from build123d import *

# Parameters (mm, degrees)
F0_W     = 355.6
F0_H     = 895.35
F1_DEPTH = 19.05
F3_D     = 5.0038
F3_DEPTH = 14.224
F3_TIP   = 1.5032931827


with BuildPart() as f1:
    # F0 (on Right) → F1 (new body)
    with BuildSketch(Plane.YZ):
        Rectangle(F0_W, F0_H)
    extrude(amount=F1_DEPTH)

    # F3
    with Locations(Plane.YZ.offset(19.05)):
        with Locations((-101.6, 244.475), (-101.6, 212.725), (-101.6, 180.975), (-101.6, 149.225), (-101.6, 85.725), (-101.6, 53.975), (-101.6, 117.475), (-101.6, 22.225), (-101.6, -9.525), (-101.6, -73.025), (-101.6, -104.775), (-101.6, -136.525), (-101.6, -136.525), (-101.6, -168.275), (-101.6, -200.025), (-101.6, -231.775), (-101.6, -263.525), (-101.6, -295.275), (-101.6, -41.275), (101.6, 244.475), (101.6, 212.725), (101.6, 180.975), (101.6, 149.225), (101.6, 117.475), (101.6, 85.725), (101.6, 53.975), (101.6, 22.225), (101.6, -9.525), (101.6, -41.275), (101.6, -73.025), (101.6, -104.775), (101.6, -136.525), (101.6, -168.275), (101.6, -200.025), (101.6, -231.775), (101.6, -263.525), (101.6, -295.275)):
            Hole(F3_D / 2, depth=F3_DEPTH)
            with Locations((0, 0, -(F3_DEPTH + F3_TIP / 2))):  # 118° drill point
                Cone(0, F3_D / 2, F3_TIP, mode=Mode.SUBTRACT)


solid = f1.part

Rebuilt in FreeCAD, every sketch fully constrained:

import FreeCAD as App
import Part
import Sketcher
Q = App.Units.Quantity

doc = App.newDocument("Part")
body = doc.addObject("PartDesign::Body", "Body")

sketch1 = doc.addObject("Sketcher::SketchObject", "Sketch")
body.addObject(sketch1)
sketch1.AttachmentSupport = (doc.YZ_Plane, [""])
sketch1.MapMode = "FlatFace"
sketch1.addGeometry([
    Part.LineSegment(App.Vector(-178, 448, 0), App.Vector(-178, -448, 0)),
    Part.LineSegment(App.Vector(-178, -448, 0), App.Vector(178, -448, 0)),
    Part.LineSegment(App.Vector(178, -448, 0), App.Vector(178, 448, 0)),
    Part.LineSegment(App.Vector(178, 448, 0), App.Vector(-178, 448, 0)),
], False)
sketch1.addConstraint([
    Sketcher.Constraint("Coincident", 0, 2, 1, 1),
    Sketcher.Constraint("Coincident", 1, 2, 2, 1),
    Sketcher.Constraint("Coincident", 2, 2, 3, 1),
    Sketcher.Constraint("Coincident", 3, 2, 0, 1),
    Sketcher.Constraint("Vertical", 0),
    Sketcher.Constraint("Horizontal", 1),
    Sketcher.Constraint("Vertical", 2),
    Sketcher.Constraint("Horizontal", 3),
    Sketcher.Constraint("Symmetric", 0, 2, 2, 2, -1, 1),
    Sketcher.Constraint("DistanceX", 1, 1, 1, 2, Q("14 in")),
    Sketcher.Constraint("DistanceY", 0, 2, 0, 1, Q("35.25 in")),
])
pad1 = doc.addObject("PartDesign::Pad", "Pad")
body.addObject(pad1)
pad1.Profile = sketch1
pad1.Length = Q("0.75 in")

sketch2 = doc.addObject("Sketcher::SketchObject", "Sketch001")
body.addObject(sketch2)
sketch2.AttachmentSupport = (doc.YZ_Plane, [""])
sketch2.MapMode = "FlatFace"
sketch2.AttachmentOffset = App.Placement(App.Vector(0, 0, 0.75 * 25.4), App.Rotation())
sketch2.addGeometry([
    Part.Circle(App.Vector(-101.6, 244.5, 0), App.Vector(0, 0, 1), 2.5),
    Part.Circle(App.Vector(-101.6, 212.7, 0), App.Vector(0, 0, 1), 2.5),
    Part.Circle(App.Vector(-101.6, 181, 0), App.Vector(0, 0, 1), 2.5),
    Part.Circle(App.Vector(-101.6, 149.2, 0), App.Vector(0, 0, 1), 2.5),
    Part.Circle(App.Vector(-101.6, 85.7, 0), App.Vector(0, 0, 1), 2.5),
    Part.Circle(App.Vector(-101.6, 54, 0), App.Vector(0, 0, 1), 2.5),
    Part.Circle(App.Vector(-101.6, 117.5, 0), App.Vector(0, 0, 1), 2.5),
    Part.Circle(App.Vector(-101.6, 22.2, 0), App.Vector(0, 0, 1), 2.5),
    Part.Circle(App.Vector(-101.6, -9.5, 0), App.Vector(0, 0, 1), 2.5),
    Part.Circle(App.Vector(-101.6, -73, 0), App.Vector(0, 0, 1), 2.5),
    Part.Circle(App.Vector(-101.6, -104.8, 0), App.Vector(0, 0, 1), 2.5),
    Part.Circle(App.Vector(-101.6, -136.5, 0), App.Vector(0, 0, 1), 2.5),
    Part.Circle(App.Vector(-101.6, -136.5, 0), App.Vector(0, 0, 1), 2.5),
    Part.Circle(App.Vector(-101.6, -168.3, 0), App.Vector(0, 0, 1), 2.5),
    Part.Circle(App.Vector(-101.6, -200, 0), App.Vector(0, 0, 1), 2.5),
    Part.Circle(App.Vector(-101.6, -231.8, 0), App.Vector(0, 0, 1), 2.5),
    Part.Circle(App.Vector(-101.6, -263.5, 0), App.Vector(0, 0, 1), 2.5),
    Part.Circle(App.Vector(-101.6, -295.3, 0), App.Vector(0, 0, 1), 2.5),
    Part.Circle(App.Vector(-101.6, -41.3, 0), App.Vector(0, 0, 1), 2.5),
    Part.Circle(App.Vector(101.6, 244.5, 0), App.Vector(0, 0, 1), 2.5),
    Part.Circle(App.Vector(101.6, 212.7, 0), App.Vector(0, 0, 1), 2.5),
    Part.Circle(App.Vector(101.6, 181, 0), App.Vector(0, 0, 1), 2.5),
    Part.Circle(App.Vector(101.6, 149.2, 0), App.Vector(0, 0, 1), 2.5),
    Part.Circle(App.Vector(101.6, 117.5, 0), App.Vector(0, 0, 1), 2.5),
    Part.Circle(App.Vector(101.6, 85.7, 0), App.Vector(0, 0, 1), 2.5),
    Part.Circle(App.Vector(101.6, 54, 0), App.Vector(0, 0, 1), 2.5),
    Part.Circle(App.Vector(101.6, 22.2, 0), App.Vector(0, 0, 1), 2.5),
    Part.Circle(App.Vector(101.6, -9.5, 0), App.Vector(0, 0, 1), 2.5),
    Part.Circle(App.Vector(101.6, -41.3, 0), App.Vector(0, 0, 1), 2.5),
    Part.Circle(App.Vector(101.6, -73, 0), App.Vector(0, 0, 1), 2.5),
    Part.Circle(App.Vector(101.6, -104.8, 0), App.Vector(0, 0, 1), 2.5),
    Part.Circle(App.Vector(101.6, -136.5, 0), App.Vector(0, 0, 1), 2.5),
    Part.Circle(App.Vector(101.6, -168.3, 0), App.Vector(0, 0, 1), 2.5),
    Part.Circle(App.Vector(101.6, -200, 0), App.Vector(0, 0, 1), 2.5),
    Part.Circle(App.Vector(101.6, -231.8, 0), App.Vector(0, 0, 1), 2.5),
    Part.Circle(App.Vector(101.6, -263.5, 0), App.Vector(0, 0, 1), 2.5),
    Part.Circle(App.Vector(101.6, -295.3, 0), App.Vector(0, 0, 1), 2.5),
], False)
sketch2.addConstraint([
    Sketcher.Constraint("Coincident", 12, 3, 11, 3),
    Sketcher.Constraint("Equal", 0, 1),
    Sketcher.Constraint("Equal", 1, 2),
    Sketcher.Constraint("Equal", 2, 3),
    Sketcher.Constraint("Equal", 3, 4),
    Sketcher.Constraint("Equal", 4, 5),
    Sketcher.Constraint("Equal", 5, 6),
    Sketcher.Constraint("Equal", 6, 7),
    Sketcher.Constraint("Equal", 7, 8),
    Sketcher.Constraint("Equal", 8, 9),
    Sketcher.Constraint("Equal", 9, 10),
    Sketcher.Constraint("Equal", 10, 11),
    Sketcher.Constraint("Equal", 11, 12),
    Sketcher.Constraint("Equal", 12, 13),
    Sketcher.Constraint("Equal", 13, 14),
    Sketcher.Constraint("Equal", 14, 15),
    Sketcher.Constraint("Equal", 15, 16),
    Sketcher.Constraint("Equal", 16, 17),
    Sketcher.Constraint("Equal", 17, 18),
    Sketcher.Constraint("Equal", 18, 19),
    Sketcher.Constraint("Equal", 19, 20),
    Sketcher.Constraint("Equal", 20, 21),
    Sketcher.Constraint("Equal", 21, 22),
    Sketcher.Constraint("Equal", 22, 23),
    Sketcher.Constraint("Equal", 23, 24),
    Sketcher.Constraint("Equal", 24, 25),
    Sketcher.Constraint("Equal", 25, 26),
    Sketcher.Constraint("Equal", 26, 27),
    Sketcher.Constraint("Equal", 27, 28),
    Sketcher.Constraint("Equal", 28, 29),
    Sketcher.Constraint("Equal", 29, 30),
    Sketcher.Constraint("Equal", 30, 31),
    Sketcher.Constraint("Equal", 31, 32),
    Sketcher.Constraint("Equal", 32, 33),
    Sketcher.Constraint("Equal", 33, 34),
    Sketcher.Constraint("Equal", 34, 35),
    Sketcher.Constraint("Equal", 35, 36),
    Sketcher.Constraint("Symmetric", 0, 3, 19, 3, -2),
    Sketcher.Constraint("Symmetric", 1, 3, 20, 3, -2),
    Sketcher.Constraint("Symmetric", 2, 3, 21, 3, -2),
    Sketcher.Constraint("Symmetric", 3, 3, 22, 3, -2),
    Sketcher.Constraint("Symmetric", 6, 3, 23, 3, -2),
    Sketcher.Constraint("Symmetric", 4, 3, 24, 3, -2),
    Sketcher.Constraint("Symmetric", 5, 3, 25, 3, -2),
    Sketcher.Constraint("Symmetric", 7, 3, 26, 3, -2),
    Sketcher.Constraint("Symmetric", 8, 3, 27, 3, -2),
    Sketcher.Constraint("Symmetric", 18, 3, 28, 3, -2),
    Sketcher.Constraint("Symmetric", 9, 3, 29, 3, -2),
    Sketcher.Constraint("Symmetric", 10, 3, 30, 3, -2),
    Sketcher.Constraint("Symmetric", 11, 3, 31, 3, -2),
    Sketcher.Constraint("Symmetric", 13, 3, 32, 3, -2),
    Sketcher.Constraint("Symmetric", 14, 3, 33, 3, -2),
    Sketcher.Constraint("Symmetric", 15, 3, 34, 3, -2),
    Sketcher.Constraint("Symmetric", 16, 3, 35, 3, -2),
    Sketcher.Constraint("Symmetric", 17, 3, 36, 3, -2),
    Sketcher.Constraint("Vertical", 0, 3, 1, 3),
    Sketcher.Constraint("Vertical", 1, 3, 2, 3),
    Sketcher.Constraint("Vertical", 2, 3, 3, 3),
    Sketcher.Constraint("Vertical", 3, 3, 4, 3),
    Sketcher.Constraint("Vertical", 4, 3, 5, 3),
    Sketcher.Constraint("Vertical", 5, 3, 6, 3),
    Sketcher.Constraint("Vertical", 6, 3, 7, 3),
    Sketcher.Constraint("Vertical", 7, 3, 8, 3),
    Sketcher.Constraint("Vertical", 8, 3, 9, 3),
    Sketcher.Constraint("Vertical", 9, 3, 10, 3),
    Sketcher.Constraint("Vertical", 10, 3, 11, 3),
    Sketcher.Constraint("Vertical", 12, 3, 13, 3),
    Sketcher.Constraint("Vertical", 13, 3, 14, 3),
    Sketcher.Constraint("Vertical", 14, 3, 15, 3),
    Sketcher.Constraint("Vertical", 15, 3, 16, 3),
    Sketcher.Constraint("Vertical", 16, 3, 17, 3),
    Sketcher.Constraint("Vertical", 17, 3, 18, 3),
    Sketcher.Constraint("Diameter", 0, Q("0.197 in")),
    Sketcher.Constraint("DistanceX", 0, 3, -1, 1, Q("4 in")),
    Sketcher.Constraint("DistanceY", 4, 3, 1, 3, Q("5 in")),
    Sketcher.Constraint("DistanceY", 5, 3, 2, 3, Q("5 in")),
    Sketcher.Constraint("DistanceY", 7, 3, 3, 3, Q("5 in")),
    Sketcher.Constraint("DistanceY", 8, 3, 6, 3, Q("5 in")),
    Sketcher.Constraint("DistanceY", 9, 3, 5, 3, Q("5 in")),
    Sketcher.Constraint("DistanceY", 10, 3, 7, 3, Q("5 in")),
    Sketcher.Constraint("DistanceY", 11, 3, 8, 3, Q("5 in")),
    Sketcher.Constraint("DistanceY", 14, 3, 9, 3, Q("5 in")),
    Sketcher.Constraint("DistanceY", 15, 3, 10, 3, Q("5 in")),
    Sketcher.Constraint("DistanceY", 16, 3, 11, 3, Q("5 in")),
    Sketcher.Constraint("DistanceY", 17, 3, 13, 3, Q("5 in")),
    Sketcher.Constraint("DistanceY", 6, 3, 19, 3, Q("5 in")),
    Sketcher.Constraint("DistanceY", 28, 3, 24, 3, Q("5 in")),
    Sketcher.Constraint("DistanceY", 32, 3, 28, 3, Q("5 in")),
    Sketcher.Constraint("DistanceY", 2, 3, 0, 3, Q("2.5 in")),
    Sketcher.Constraint("DistanceY", 3, 3, 1, 3, Q("2.5 in")),
    Sketcher.Constraint("DistanceY", 1, 3, 0, 3, Q("1.25 in")),
    Sketcher.Constraint("DistanceY", -1, 1, 0, 3, Q("9.625 in")),
])
doc.recompute()
hole = doc.addObject("PartDesign::Hole", "Hole")
body.addObject(hole)
hole.Profile = sketch2
hole.ThreadType = "None"
hole.Diameter = Q("0.197 in")
hole.DepthType = "Dimension"
hole.Depth = Q("0.56 in")
hole.DrillPoint = "Angled"
hole.DrillPointAngle = 118

doc.recompute()
